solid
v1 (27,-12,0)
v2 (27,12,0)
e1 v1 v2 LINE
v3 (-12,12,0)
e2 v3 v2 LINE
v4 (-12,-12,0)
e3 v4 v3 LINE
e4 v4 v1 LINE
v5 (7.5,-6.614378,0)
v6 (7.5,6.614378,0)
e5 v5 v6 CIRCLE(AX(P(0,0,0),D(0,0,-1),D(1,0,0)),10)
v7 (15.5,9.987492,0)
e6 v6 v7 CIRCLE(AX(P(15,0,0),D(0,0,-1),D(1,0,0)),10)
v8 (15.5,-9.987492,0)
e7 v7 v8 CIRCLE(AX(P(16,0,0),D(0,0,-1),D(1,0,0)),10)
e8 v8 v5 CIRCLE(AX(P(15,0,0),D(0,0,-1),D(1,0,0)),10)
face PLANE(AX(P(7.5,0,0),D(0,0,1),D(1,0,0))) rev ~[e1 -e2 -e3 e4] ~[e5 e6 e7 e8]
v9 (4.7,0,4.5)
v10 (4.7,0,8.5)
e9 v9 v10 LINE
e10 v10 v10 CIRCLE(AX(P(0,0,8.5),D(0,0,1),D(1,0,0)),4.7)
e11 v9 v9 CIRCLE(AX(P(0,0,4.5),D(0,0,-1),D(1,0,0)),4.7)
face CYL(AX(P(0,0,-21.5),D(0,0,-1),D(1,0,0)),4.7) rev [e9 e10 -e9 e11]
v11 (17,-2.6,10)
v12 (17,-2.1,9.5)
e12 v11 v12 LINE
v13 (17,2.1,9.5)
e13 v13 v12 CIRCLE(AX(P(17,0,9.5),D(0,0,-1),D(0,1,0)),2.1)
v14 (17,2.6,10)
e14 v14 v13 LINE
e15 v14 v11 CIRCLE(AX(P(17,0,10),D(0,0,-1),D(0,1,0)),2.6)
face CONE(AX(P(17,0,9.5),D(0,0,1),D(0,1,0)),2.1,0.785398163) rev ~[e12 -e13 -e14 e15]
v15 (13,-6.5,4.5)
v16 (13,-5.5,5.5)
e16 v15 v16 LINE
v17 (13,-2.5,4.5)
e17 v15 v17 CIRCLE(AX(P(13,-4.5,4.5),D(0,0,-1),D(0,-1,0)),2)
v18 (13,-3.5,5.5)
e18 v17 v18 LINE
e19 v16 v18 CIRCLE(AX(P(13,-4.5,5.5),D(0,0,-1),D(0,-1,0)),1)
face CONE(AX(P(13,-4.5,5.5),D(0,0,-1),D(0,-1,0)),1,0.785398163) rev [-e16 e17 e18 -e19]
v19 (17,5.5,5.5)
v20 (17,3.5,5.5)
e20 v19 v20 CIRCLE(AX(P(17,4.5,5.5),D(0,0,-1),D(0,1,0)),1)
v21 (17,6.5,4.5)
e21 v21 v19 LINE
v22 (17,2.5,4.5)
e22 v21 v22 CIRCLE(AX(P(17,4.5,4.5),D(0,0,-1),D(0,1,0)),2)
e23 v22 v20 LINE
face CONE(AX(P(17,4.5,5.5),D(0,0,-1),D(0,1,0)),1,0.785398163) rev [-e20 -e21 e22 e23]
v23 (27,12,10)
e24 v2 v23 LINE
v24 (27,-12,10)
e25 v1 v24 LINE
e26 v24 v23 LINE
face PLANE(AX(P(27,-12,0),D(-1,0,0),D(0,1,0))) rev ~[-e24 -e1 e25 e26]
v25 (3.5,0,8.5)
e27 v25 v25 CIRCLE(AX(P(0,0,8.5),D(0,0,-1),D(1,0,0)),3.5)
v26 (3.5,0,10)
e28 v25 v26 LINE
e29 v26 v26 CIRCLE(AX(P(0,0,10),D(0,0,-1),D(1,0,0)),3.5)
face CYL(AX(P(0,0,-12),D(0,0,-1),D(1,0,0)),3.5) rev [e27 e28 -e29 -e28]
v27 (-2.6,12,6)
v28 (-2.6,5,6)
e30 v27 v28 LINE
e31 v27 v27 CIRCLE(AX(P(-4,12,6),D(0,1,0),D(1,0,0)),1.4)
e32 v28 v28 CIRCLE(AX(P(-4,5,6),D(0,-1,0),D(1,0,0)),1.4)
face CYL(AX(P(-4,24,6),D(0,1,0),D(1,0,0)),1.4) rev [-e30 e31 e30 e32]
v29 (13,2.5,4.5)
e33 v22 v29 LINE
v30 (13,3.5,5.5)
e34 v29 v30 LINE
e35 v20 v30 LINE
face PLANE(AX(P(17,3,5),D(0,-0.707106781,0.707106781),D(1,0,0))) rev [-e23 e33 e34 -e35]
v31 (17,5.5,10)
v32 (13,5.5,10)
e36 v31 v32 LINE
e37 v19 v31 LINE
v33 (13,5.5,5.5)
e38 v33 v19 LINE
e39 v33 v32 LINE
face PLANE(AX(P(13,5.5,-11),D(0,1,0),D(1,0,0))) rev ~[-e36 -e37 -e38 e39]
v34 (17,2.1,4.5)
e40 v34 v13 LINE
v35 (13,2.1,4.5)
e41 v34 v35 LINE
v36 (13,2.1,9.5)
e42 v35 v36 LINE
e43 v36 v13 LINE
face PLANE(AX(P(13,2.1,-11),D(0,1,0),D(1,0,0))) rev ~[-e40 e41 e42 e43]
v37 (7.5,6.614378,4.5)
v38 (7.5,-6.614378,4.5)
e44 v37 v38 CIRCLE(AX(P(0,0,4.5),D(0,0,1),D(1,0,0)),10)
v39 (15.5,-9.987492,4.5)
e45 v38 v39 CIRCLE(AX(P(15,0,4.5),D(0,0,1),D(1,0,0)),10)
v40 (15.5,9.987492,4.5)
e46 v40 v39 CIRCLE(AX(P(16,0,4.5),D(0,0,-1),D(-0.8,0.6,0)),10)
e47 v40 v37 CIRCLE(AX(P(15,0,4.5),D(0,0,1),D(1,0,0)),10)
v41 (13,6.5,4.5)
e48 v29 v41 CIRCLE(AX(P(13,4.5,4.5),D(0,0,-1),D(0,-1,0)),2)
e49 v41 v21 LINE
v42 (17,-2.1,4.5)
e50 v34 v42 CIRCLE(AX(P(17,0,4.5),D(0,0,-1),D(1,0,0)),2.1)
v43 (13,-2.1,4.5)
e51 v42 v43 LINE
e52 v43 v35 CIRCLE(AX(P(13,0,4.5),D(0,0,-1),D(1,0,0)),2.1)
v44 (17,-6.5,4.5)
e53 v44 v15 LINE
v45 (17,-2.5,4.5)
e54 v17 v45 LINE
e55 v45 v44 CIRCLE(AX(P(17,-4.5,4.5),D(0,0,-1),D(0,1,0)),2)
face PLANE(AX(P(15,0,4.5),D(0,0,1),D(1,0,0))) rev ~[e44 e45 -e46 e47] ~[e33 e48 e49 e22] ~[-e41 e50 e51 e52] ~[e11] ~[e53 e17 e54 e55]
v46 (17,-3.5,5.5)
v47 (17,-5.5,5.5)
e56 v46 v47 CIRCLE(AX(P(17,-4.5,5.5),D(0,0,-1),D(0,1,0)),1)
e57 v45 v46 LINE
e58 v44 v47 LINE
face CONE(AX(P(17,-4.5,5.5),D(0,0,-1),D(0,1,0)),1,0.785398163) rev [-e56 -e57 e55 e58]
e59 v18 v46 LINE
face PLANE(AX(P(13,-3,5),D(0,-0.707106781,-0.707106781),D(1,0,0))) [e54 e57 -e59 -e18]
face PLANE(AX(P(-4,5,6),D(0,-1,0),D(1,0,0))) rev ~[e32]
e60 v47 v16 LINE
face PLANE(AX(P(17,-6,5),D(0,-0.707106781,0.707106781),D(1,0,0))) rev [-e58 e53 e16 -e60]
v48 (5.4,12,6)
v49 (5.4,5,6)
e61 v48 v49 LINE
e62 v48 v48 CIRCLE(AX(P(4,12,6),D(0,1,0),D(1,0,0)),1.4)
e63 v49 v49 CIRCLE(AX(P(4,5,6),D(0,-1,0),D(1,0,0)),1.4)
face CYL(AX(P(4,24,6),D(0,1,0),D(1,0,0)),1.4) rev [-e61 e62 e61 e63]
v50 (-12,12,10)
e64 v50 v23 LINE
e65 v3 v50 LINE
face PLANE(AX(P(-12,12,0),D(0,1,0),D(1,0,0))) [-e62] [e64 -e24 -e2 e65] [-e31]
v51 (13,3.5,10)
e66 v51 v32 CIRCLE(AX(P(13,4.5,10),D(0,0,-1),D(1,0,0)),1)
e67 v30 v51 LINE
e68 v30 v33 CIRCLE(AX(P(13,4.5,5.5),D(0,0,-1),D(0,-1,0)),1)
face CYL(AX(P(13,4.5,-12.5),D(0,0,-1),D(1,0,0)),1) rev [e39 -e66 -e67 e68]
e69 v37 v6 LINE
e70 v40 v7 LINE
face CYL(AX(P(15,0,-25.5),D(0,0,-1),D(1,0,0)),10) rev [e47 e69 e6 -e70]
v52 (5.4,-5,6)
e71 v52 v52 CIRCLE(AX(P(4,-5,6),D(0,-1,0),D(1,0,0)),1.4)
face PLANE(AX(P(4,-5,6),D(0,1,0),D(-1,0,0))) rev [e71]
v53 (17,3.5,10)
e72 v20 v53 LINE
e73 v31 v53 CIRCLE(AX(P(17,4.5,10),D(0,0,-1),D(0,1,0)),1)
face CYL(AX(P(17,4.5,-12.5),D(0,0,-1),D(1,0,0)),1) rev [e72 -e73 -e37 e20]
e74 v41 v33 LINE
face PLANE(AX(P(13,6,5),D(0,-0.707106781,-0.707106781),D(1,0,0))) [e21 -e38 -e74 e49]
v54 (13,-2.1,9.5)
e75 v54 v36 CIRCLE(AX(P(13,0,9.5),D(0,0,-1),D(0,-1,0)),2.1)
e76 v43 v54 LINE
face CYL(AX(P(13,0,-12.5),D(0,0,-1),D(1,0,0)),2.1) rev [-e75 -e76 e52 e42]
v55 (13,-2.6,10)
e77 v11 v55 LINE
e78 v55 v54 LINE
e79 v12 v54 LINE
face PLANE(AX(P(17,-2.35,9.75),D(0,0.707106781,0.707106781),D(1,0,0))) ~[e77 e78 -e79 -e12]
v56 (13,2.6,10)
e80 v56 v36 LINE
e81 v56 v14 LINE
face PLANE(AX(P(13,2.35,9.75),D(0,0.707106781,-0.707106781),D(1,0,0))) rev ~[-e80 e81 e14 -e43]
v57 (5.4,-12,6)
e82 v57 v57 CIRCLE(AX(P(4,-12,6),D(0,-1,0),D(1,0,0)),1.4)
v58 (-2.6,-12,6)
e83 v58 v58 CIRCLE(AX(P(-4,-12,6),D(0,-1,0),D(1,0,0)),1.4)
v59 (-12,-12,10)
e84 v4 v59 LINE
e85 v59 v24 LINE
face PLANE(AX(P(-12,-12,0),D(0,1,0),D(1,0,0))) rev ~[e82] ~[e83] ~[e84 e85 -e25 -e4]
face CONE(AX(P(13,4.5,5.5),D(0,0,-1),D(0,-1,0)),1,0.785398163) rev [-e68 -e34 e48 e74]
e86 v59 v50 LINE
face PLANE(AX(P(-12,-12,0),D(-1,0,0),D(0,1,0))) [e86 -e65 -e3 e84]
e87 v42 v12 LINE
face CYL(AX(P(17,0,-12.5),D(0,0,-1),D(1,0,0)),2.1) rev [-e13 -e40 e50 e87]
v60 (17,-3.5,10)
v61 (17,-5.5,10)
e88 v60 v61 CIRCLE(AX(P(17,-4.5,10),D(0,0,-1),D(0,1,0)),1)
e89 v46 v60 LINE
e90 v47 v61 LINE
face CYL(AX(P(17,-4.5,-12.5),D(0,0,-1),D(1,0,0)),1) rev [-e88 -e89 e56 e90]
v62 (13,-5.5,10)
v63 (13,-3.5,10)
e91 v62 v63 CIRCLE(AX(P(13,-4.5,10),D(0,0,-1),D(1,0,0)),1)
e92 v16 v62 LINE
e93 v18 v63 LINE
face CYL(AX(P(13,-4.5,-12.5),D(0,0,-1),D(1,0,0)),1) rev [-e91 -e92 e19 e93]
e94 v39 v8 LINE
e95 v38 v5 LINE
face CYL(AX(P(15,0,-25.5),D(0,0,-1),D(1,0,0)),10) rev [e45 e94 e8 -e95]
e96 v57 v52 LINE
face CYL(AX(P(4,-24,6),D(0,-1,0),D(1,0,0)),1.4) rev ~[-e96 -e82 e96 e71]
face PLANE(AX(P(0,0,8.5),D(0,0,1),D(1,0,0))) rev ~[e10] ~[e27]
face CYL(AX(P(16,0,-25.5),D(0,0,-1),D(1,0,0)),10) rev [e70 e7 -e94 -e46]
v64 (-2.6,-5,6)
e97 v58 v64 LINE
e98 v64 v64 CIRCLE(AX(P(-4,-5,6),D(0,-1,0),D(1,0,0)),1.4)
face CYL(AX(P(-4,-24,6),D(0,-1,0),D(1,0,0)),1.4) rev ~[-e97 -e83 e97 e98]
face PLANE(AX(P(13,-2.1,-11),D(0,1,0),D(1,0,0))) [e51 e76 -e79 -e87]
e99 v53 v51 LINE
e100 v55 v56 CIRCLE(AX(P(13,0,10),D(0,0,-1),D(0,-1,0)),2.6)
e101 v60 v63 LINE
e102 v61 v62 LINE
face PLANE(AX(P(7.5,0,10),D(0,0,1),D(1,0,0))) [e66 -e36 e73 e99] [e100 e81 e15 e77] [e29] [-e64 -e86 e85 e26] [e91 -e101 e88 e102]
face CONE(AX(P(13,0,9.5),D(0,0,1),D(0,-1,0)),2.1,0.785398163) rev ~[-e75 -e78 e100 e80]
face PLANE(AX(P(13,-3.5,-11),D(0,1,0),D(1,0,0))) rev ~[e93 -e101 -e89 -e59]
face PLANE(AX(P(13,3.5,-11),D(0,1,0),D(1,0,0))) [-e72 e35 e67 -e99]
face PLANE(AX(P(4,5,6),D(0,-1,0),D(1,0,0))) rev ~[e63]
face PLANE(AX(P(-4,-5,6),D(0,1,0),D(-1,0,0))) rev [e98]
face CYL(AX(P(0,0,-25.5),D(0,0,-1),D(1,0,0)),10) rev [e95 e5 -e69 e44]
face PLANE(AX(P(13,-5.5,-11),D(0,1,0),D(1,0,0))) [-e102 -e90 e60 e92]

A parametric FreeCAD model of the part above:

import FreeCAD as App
import Part
import Sketcher

V = App.Vector


def edges_at(feature, points):
    """Names of the edges that pass closest to the given points."""
    edges = feature.Shape.Edges
    near = lambda p: min(range(len(edges)), key=lambda i: edges[i].distToShape(Part.Vertex(*p))[0])
    return sorted({f"Edge{near(p) + 1}" for p in points})

doc = App.newDocument("Part")
body = doc.addObject("PartDesign::Body", "Body")

# Sketch on XY plane
sketch1 = body.newObject("Sketcher::SketchObject", "Sketch")
sketch1.AttachmentSupport = (doc.getObject("XY_Plane"), [""])
sketch1.MapMode = "FlatFace"
sketch1.addGeometry(Part.Circle(V(0, 0, 0), V(0, 0, 1), 1.4), False)
sketch1.addConstraint(Sketcher.Constraint("Coincident", 0, 3, -1, 1))
sketch1.addConstraint(Sketcher.Constraint("Diameter", 0, 2.8))
pad1 = body.newObject("PartDesign::Pad", "Pad")
pad1.Profile = sketch1
pad1.Length = 19
body2 = doc.addObject("PartDesign::Body", "Body001")
doc.recompute()

body.Placement = App.Placement(V(0, 0, 0), App.Rotation(V(1, 0, 0), 90))
boolean = body2.newObject("PartDesign::Boolean", "Boolean")
boolean.Type = "Fuse"
boolean.addObjects([body])
body3 = doc.addObject("PartDesign::Body", "Body002")
doc.recompute()

body2.Placement = App.Placement(V(4, 24, 6), App.Rotation(V(0, 0, 1), 0))
boolean2 = body3.newObject("PartDesign::Boolean", "Boolean001")
boolean2.Type = "Fuse"
boolean2.addObjects([body2])
body4 = doc.addObject("PartDesign::Body", "Body003")

# Sketch on XY plane
sketch2 = body4.newObject("Sketcher::SketchObject", "Sketch001")
sketch2.AttachmentSupport = (doc.getObject("XY_Plane003"), [""])
sketch2.MapMode = "FlatFace"
sketch2.addGeometry(Part.Circle(V(0, 0, 0), V(0, 0, 1), 1.4), False)
sketch2.addConstraint(Sketcher.Constraint("Coincident", 0, 3, -1, 1))
sketch2.addConstraint(Sketcher.Constraint("Diameter", 0, 2.8))
pad2 = body4.newObject("PartDesign::Pad", "Pad001")
pad2.Profile = sketch2
pad2.Length = 19
body5 = doc.addObject("PartDesign::Body", "Body004")
doc.recompute()

body4.Placement = App.Placement(V(0, 0, 0), App.Rotation(V(1, 0, 0), 90))
boolean3 = body5.newObject("PartDesign::Boolean", "Boolean002")
boolean3.Type = "Fuse"
boolean3.addObjects([body4])
body6 = doc.addObject("PartDesign::Body", "Body005")
doc.recompute()

body5.Placement = App.Placement(V(-4, 24, 6), App.Rotation(V(0, 0, 1), 0))
boolean4 = body6.newObject("PartDesign::Boolean", "Boolean003")
boolean4.Type = "Fuse"
boolean4.addObjects([body5])
body7 = doc.addObject("PartDesign::Body", "Body006")
doc.recompute()

mirroring = doc.addObject("Part::Mirroring", "Mirroring")
mirroring.Source = body6
mirroring.Base = V(0, 0, 0)
mirroring.Normal = V(0, 1, 0)
body7.BaseFeature = mirroring
doc.recompute()
body8 = doc.addObject("PartDesign::Body", "Body007")

# Sketch on XY plane
sketch3 = body8.newObject("Sketcher::SketchObject", "Sketch002")
sketch3.AttachmentSupport = (doc.getObject("XY_Plane007"), [""])
sketch3.MapMode = "FlatFace"
sketch3.addGeometry(Part.Circle(V(0, 0, 0), V(0, 0, 1), 1.4), False)
sketch3.addConstraint(Sketcher.Constraint("Coincident", 0, 3, -1, 1))
sketch3.addConstraint(Sketcher.Constraint("Diameter", 0, 2.8))
pad3 = body8.newObject("PartDesign::Pad", "Pad002")
pad3.Profile = sketch3
pad3.Length = 19
body9 = doc.addObject("PartDesign::Body", "Body008")
doc.recompute()

body8.Placement = App.Placement(V(0, 0, 0), App.Rotation(V(1, 0, 0), 90))
boolean5 = body9.newObject("PartDesign::Boolean", "Boolean004")
boolean5.Type = "Fuse"
boolean5.addObjects([body8])
body10 = doc.addObject("PartDesign::Body", "Body009")
doc.recompute()

body9.Placement = App.Placement(V(4, 24, 6), App.Rotation(V(0, 0, 1), 0))
boolean6 = body10.newObject("PartDesign::Boolean", "Boolean005")
boolean6.Type = "Fuse"
boolean6.addObjects([body9])
body11 = doc.addObject("PartDesign::Body", "Body010")
doc.recompute()

mirroring2 = doc.addObject("Part::Mirroring", "Mirroring001")
mirroring2.Source = body10
mirroring2.Base = V(0, 0, 0)
mirroring2.Normal = V(0, 1, 0)
body11.BaseFeature = mirroring2
doc.recompute()
body12 = doc.addObject("PartDesign::Body", "Body011")

# Sketch on XY plane
sketch4 = body12.newObject("Sketcher::SketchObject", "Sketch003")
sketch4.AttachmentSupport = (doc.getObject("XY_Plane011"), [""])
sketch4.MapMode = "FlatFace"
sketch4.addGeometry(Part.Circle(V(0, 0, 0), V(0, 0, 1), 1.4), False)
sketch4.addConstraint(Sketcher.Constraint("Coincident", 0, 3, -1, 1))
sketch4.addConstraint(Sketcher.Constraint("Diameter", 0, 2.8))
pad4 = body12.newObject("PartDesign::Pad", "Pad003")
pad4.Profile = sketch4
pad4.Length = 19
body13 = doc.addObject("PartDesign::Body", "Body012")
doc.recompute()

body12.Placement = App.Placement(V(0, 0, 0), App.Rotation(V(1, 0, 0), 90))
boolean7 = body13.newObject("PartDesign::Boolean", "Boolean006")
boolean7.Type = "Fuse"
boolean7.addObjects([body12])
body14 = doc.addObject("PartDesign::Body", "Body013")
body14.AllowCompound = True
doc.recompute()

body13.Placement = App.Placement(V(-4, 24, 6), App.Rotation(V(0, 0, 1), 0))
boolean8 = body14.newObject("PartDesign::Boolean", "Boolean007")
boolean8.Type = "Fuse"
boolean8.addObjects([body13])
doc.recompute()

boolean9 = body14.newObject("PartDesign::Boolean", "Boolean008")
boolean9.Type = "Fuse"
boolean9.addObjects([body3])
doc.recompute()

boolean10 = body14.newObject("PartDesign::Boolean", "Boolean009")
boolean10.Type = "Fuse"
boolean10.addObjects([body7])
doc.recompute()

boolean11 = body14.newObject("PartDesign::Boolean", "Boolean010")
boolean11.Type = "Fuse"
boolean11.addObjects([body11])
body15 = doc.addObject("PartDesign::Body", "Body014")

# Sketch on XY plane
sketch5 = body15.newObject("Sketcher::SketchObject", "Sketch004")
sketch5.AttachmentSupport = (doc.getObject("XY_Plane014"), [""])
sketch5.MapMode = "FlatFace"
sketch5.AttachmentOffset = App.Placement(V(0, 0, -12.5), App.Rotation())
sketch5.addGeometry(Part.Circle(V(17, -4.5, 0), V(0, 0, 1), 1), False)
sketch5.addConstraint(Sketcher.Constraint("Diameter", 0, 2.0))
sketch5.addConstraint(Sketcher.Constraint("DistanceX", -1, 1, 0, 3, 17.0))
sketch5.addConstraint(Sketcher.Constraint("DistanceY", 0, 3, -1, 1, 4.5))
pad5 = body15.newObject("PartDesign::Pad", "Pad004")
pad5.Profile = sketch5
pad5.Length = 30
body16 = doc.addObject("PartDesign::Body", "Body015")

# Sketch on XY plane
sketch6 = body16.newObject("Sketcher::SketchObject", "Sketch005")
sketch6.AttachmentSupport = (doc.getObject("XY_Plane015"), [""])
sketch6.MapMode = "FlatFace"
sketch6.AttachmentOffset = App.Placement(V(0, 0, -12.5), App.Rotation())
sketch6.addGeometry(Part.Circle(V(17, 4.5, 0), V(0, 0, 1), 1), False)
sketch6.addConstraint(Sketcher.Constraint("Diameter", 0, 2.0))
sketch6.addConstraint(Sketcher.Constraint("DistanceX", -1, 1, 0, 3, 17.0))
sketch6.addConstraint(Sketcher.Constraint("DistanceY", -1, 1, 0, 3, 4.5))
pad6 = body16.newObject("PartDesign::Pad", "Pad005")
pad6.Profile = sketch6
pad6.Length = 30
body17 = doc.addObject("PartDesign::Body", "Body016")

# Sketch on XY plane
sketch7 = body17.newObject("Sketcher::SketchObject", "Sketch006")
sketch7.AttachmentSupport = (doc.getObject("XY_Plane016"), [""])
sketch7.MapMode = "FlatFace"
sketch7.AttachmentOffset = App.Placement(V(0, 0, -11), App.Rotation())
sketch7.addGeometry(Part.LineSegment(V(13, 2.1, 0), V(13, -2.1, 0)), False)
sketch7.addGeometry(Part.LineSegment(V(13, -2.1, 0), V(17, -2.1, 0)), False)
sketch7.addGeometry(Part.LineSegment(V(17, -2.1, 0), V(17, 2.1, 0)), False)
sketch7.addGeometry(Part.LineSegment(V(17, 2.1, 0), V(13, 2.1, 0)), False)
sketch7.addConstraint(Sketcher.Constraint("Coincident", 0, 2, 1, 1))
sketch7.addConstraint(Sketcher.Constraint("Coincident", 1, 2, 2, 1))
sketch7.addConstraint(Sketcher.Constraint("Coincident", 2, 2, 3, 1))
sketch7.addConstraint(Sketcher.Constraint("Coincident", 3, 2, 0, 1))
sketch7.addConstraint(Sketcher.Constraint("Vertical", 0))
sketch7.addConstraint(Sketcher.Constraint("Horizontal", 1))
sketch7.addConstraint(Sketcher.Constraint("Vertical", 2))
sketch7.addConstraint(Sketcher.Constraint("Horizontal", 3))
sketch7.addConstraint(Sketcher.Constraint("DistanceX", 1, 1, 1, 2, 4.0))
sketch7.addConstraint(Sketcher.Constraint("DistanceY", 0, 2, 0, 1, 4.2))
sketch7.addConstraint(Sketcher.Constraint("DistanceX", -1, 1, 0, 2, 13.0))
sketch7.addConstraint(Sketcher.Constraint("DistanceY", 0, 2, -1, 1, 2.1))
pad7 = body17.newObject("PartDesign::Pad", "Pad006")
pad7.Profile = sketch7
pad7.Length = 27
body18 = doc.addObject("PartDesign::Body", "Body017")

# Sketch on XY plane
sketch8 = body18.newObject("Sketcher::SketchObject", "Sketch007")
sketch8.AttachmentSupport = (doc.getObject("XY_Plane017"), [""])
sketch8.MapMode = "FlatFace"
sketch8.AttachmentOffset = App.Placement(V(0, 0, -12.5), App.Rotation())
sketch8.addGeometry(Part.Circle(V(17, 0, 0), V(0, 0, 1), 2.1), False)
sketch8.addConstraint(Sketcher.Constraint("PointOnObject", 0, 3, -1))
sketch8.addConstraint(Sketcher.Constraint("Diameter", 0, 4.2))
sketch8.addConstraint(Sketcher.Constraint("DistanceX", -1, 1, 0, 3, 17.0))
pad8 = body18.newObject("PartDesign::Pad", "Pad007")
pad8.Profile = sketch8
pad8.Length = 30
body19 = doc.addObject("PartDesign::Body", "Body018")

# Sketch on XY plane
sketch9 = body19.newObject("Sketcher::SketchObject", "Sketch008")
sketch9.AttachmentSupport = (doc.getObject("XY_Plane018"), [""])
sketch9.MapMode = "FlatFace"
sketch9.AttachmentOffset = App.Placement(V(0, 0, -12.5), App.Rotation())
sketch9.addGeometry(Part.Circle(V(13, 0, 0), V(0, 0, 1), 2.1), False)
sketch9.addConstraint(Sketcher.Constraint("PointOnObject", 0, 3, -1))
sketch9.addConstraint(Sketcher.Constraint("Diameter", 0, 4.2))
sketch9.addConstraint(Sketcher.Constraint("DistanceX", -1, 1, 0, 3, 13.0))
pad9 = body19.newObject("PartDesign::Pad", "Pad008")
pad9.Profile = sketch9
pad9.Length = 30
body20 = doc.addObject("PartDesign::Body", "Body019")

# Sketch on XY plane
sketch10 = body20.newObject("Sketcher::SketchObject", "Sketch009")
sketch10.AttachmentSupport = (doc.getObject("XY_Plane019"), [""])
sketch10.MapMode = "FlatFace"
sketch10.AttachmentOffset = App.Placement(V(0, 0, -12.5), App.Rotation())
sketch10.addGeometry(Part.Circle(V(13, -4.5, 0), V(0, 0, 1), 1), False)
sketch10.addConstraint(Sketcher.Constraint("Diameter", 0, 2.0))
sketch10.addConstraint(Sketcher.Constraint("DistanceX", -1, 1, 0, 3, 13.0))
sketch10.addConstraint(Sketcher.Constraint("DistanceY", 0, 3, -1, 1, 4.5))
pad10 = body20.newObject("PartDesign::Pad", "Pad009")
pad10.Profile = sketch10
pad10.Length = 30
body21 = doc.addObject("PartDesign::Body", "Body020")

# Sketch on XY plane
sketch11 = body21.newObject("Sketcher::SketchObject", "Sketch010")
sketch11.AttachmentSupport = (doc.getObject("XY_Plane020"), [""])
sketch11.MapMode = "FlatFace"
sketch11.AttachmentOffset = App.Placement(V(0, 0, -11), App.Rotation())
sketch11.addGeometry(Part.LineSegment(V(13, -3.5, 0), V(13, -5.5, 0)), False)
sketch11.addGeometry(Part.LineSegment(V(13, -5.5, 0), V(17, -5.5, 0)), False)
sketch11.addGeometry(Part.LineSegment(V(17, -5.5, 0), V(17, -3.5, 0)), False)
sketch11.addGeometry(Part.LineSegment(V(17, -3.5, 0), V(13, -3.5, 0)), False)
sketch11.addConstraint(Sketcher.Constraint("Coincident", 0, 2, 1, 1))
sketch11.addConstraint(Sketcher.Constraint("Coincident", 1, 2, 2, 1))
sketch11.addConstraint(Sketcher.Constraint("Coincident", 2, 2, 3, 1))
sketch11.addConstraint(Sketcher.Constraint("Coincident", 3, 2, 0, 1))
sketch11.addConstraint(Sketcher.Constraint("Vertical", 0))
sketch11.addConstraint(Sketcher.Constraint("Horizontal", 1))
sketch11.addConstraint(Sketcher.Constraint("Vertical", 2))
sketch11.addConstraint(Sketcher.Constraint("Horizontal", 3))
sketch11.addConstraint(Sketcher.Constraint("DistanceX", 1, 1, 1, 2, 4.0))
sketch11.addConstraint(Sketcher.Constraint("DistanceY", 0, 2, 0, 1, 2.0))
sketch11.addConstraint(Sketcher.Constraint("DistanceX", -1, 1, 0, 2, 13.0))
sketch11.addConstraint(Sketcher.Constraint("DistanceY", 0, 2, -1, 1, 5.5))
pad11 = body21.newObject("PartDesign::Pad", "Pad010")
pad11.Profile = sketch11
pad11.Length = 27
body22 = doc.addObject("PartDesign::Body", "Body021")

# Sketch on XY plane
sketch12 = body22.newObject("Sketcher::SketchObject", "Sketch011")
sketch12.AttachmentSupport = (doc.getObject("XY_Plane021"), [""])
sketch12.MapMode = "FlatFace"
sketch12.AttachmentOffset = App.Placement(V(0, 0, -12.5), App.Rotation())
sketch12.addGeometry(Part.Circle(V(13, 4.5, 0), V(0, 0, 1), 1), False)
sketch12.addConstraint(Sketcher.Constraint("Diameter", 0, 2.0))
sketch12.addConstraint(Sketcher.Constraint("DistanceX", -1, 1, 0, 3, 13.0))
sketch12.addConstraint(Sketcher.Constraint("DistanceY", -1, 1, 0, 3, 4.5))
pad12 = body22.newObject("PartDesign::Pad", "Pad011")
pad12.Profile = sketch12
pad12.Length = 30
body23 = doc.addObject("PartDesign::Body", "Body022")
body23.AllowCompound = True

# Sketch on XY plane
sketch13 = body23.newObject("Sketcher::SketchObject", "Sketch012")
sketch13.AttachmentSupport = (doc.getObject("XY_Plane022"), [""])
sketch13.MapMode = "FlatFace"
sketch13.AttachmentOffset = App.Placement(V(0, 0, -11), App.Rotation())
sketch13.addGeometry(Part.LineSegment(V(13, 5.5, 0), V(13, 3.5, 0)), False)
sketch13.addGeometry(Part.LineSegment(V(13, 3.5, 0), V(17, 3.5, 0)), False)
sketch13.addGeometry(Part.LineSegment(V(17, 3.5, 0), V(17, 5.5, 0)), False)
sketch13.addGeometry(Part.LineSegment(V(17, 5.5, 0), V(13, 5.5, 0)), False)
sketch13.addConstraint(Sketcher.Constraint("Coincident", 0, 2, 1, 1))
sketch13.addConstraint(Sketcher.Constraint("Coincident", 1, 2, 2, 1))
sketch13.addConstraint(Sketcher.Constraint("Coincident", 2, 2, 3, 1))
sketch13.addConstraint(Sketcher.Constraint("Coincident", 3, 2, 0, 1))
sketch13.addConstraint(Sketcher.Constraint("Vertical", 0))
sketch13.addConstraint(Sketcher.Constraint("Horizontal", 1))
sketch13.addConstraint(Sketcher.Constraint("Vertical", 2))
sketch13.addConstraint(Sketcher.Constraint("Horizontal", 3))
sketch13.addConstraint(Sketcher.Constraint("DistanceX", 1, 1, 1, 2, 4.0))
sketch13.addConstraint(Sketcher.Constraint("DistanceY", 0, 2, 0, 1, 2.0))
sketch13.addConstraint(Sketcher.Constraint("DistanceX", -1, 1, 0, 2, 13.0))
sketch13.addConstraint(Sketcher.Constraint("DistanceY", -1, 1, 0, 2, 3.5))
pad13 = body23.newObject("PartDesign::Pad", "Pad012")
pad13.Profile = sketch13
pad13.Length = 27
doc.recompute()

boolean12 = body23.newObject("PartDesign::Boolean", "Boolean011")
boolean12.Type = "Fuse"
boolean12.addObjects([body15])
doc.recompute()

boolean13 = body23.newObject("PartDesign::Boolean", "Boolean012")
boolean13.Type = "Fuse"
boolean13.addObjects([body16])
doc.recompute()

boolean14 = body23.newObject("PartDesign::Boolean", "Boolean013")
boolean14.Type = "Fuse"
boolean14.addObjects([body17])
doc.recompute()

boolean15 = body23.newObject("PartDesign::Boolean", "Boolean014")
boolean15.Type = "Fuse"
boolean15.addObjects([body18])
doc.recompute()

boolean16 = body23.newObject("PartDesign::Boolean", "Boolean015")
boolean16.Type = "Fuse"
boolean16.addObjects([body19])
doc.recompute()

boolean17 = body23.newObject("PartDesign::Boolean", "Boolean016")
boolean17.Type = "Fuse"
boolean17.addObjects([body20])
doc.recompute()

boolean18 = body23.newObject("PartDesign::Boolean", "Boolean017")
boolean18.Type = "Fuse"
boolean18.addObjects([body21])
doc.recompute()

boolean19 = body23.newObject("PartDesign::Boolean", "Boolean018")
boolean19.Type = "Fuse"
boolean19.addObjects([body22])
body24 = doc.addObject("PartDesign::Body", "Body023")

# Sketch on XY plane
sketch14 = body24.newObject("Sketcher::SketchObject", "Sketch013")
sketch14.AttachmentSupport = (doc.getObject("XY_Plane023"), [""])
sketch14.MapMode = "FlatFace"
sketch14.AttachmentOffset = App.Placement(V(0, 0, -12), App.Rotation())
sketch14.addGeometry(Part.Circle(V(0, 0, 0), V(0, 0, 1), 3.5), False)
sketch14.addConstraint(Sketcher.Constraint("Coincident", 0, 3, -1, 1))
sketch14.addConstraint(Sketcher.Constraint("Diameter", 0, 7.0))
pad14 = body24.newObject("PartDesign::Pad", "Pad013")
pad14.Profile = sketch14
pad14.Length = 30
body25 = doc.addObject("PartDesign::Body", "Body024")

# Sketch on XY plane
sketch15 = body25.newObject("Sketcher::SketchObject", "Sketch014")
sketch15.AttachmentSupport = (doc.getObject("XY_Plane024"), [""])
sketch15.MapMode = "FlatFace"
sketch15.AttachmentOffset = App.Placement(V(0, 0, -21.5), App.Rotation())
sketch15.addGeometry(Part.Circle(V(0, 0, 0), V(0, 0, 1), 4.7), False)
sketch15.addConstraint(Sketcher.Constraint("Coincident", 0, 3, -1, 1))
sketch15.addConstraint(Sketcher.Constraint("Diameter", 0, 9.4))
pad15 = body25.newObject("PartDesign::Pad", "Pad014")
pad15.Profile = sketch15
pad15.Length = 30
body26 = doc.addObject("PartDesign::Body", "Body025")

# Sketch on XY plane
sketch16 = body26.newObject("Sketcher::SketchObject", "Sketch015")
sketch16.AttachmentSupport = (doc.getObject("XY_Plane025"), [""])
sketch16.MapMode = "FlatFace"
sketch16.AttachmentOffset = App.Placement(V(0, 0, -25.5), App.Rotation())
sketch16.addGeometry(Part.Circle(V(0, 0, 0), V(0, 0, 1), 10), False)
sketch16.addConstraint(Sketcher.Constraint("Coincident", 0, 3, -1, 1))
sketch16.addConstraint(Sketcher.Constraint("Diameter", 0, 20.0))
pad16 = body26.newObject("PartDesign::Pad", "Pad015")
pad16.Profile = sketch16
pad16.Length = 30
body27 = doc.addObject("PartDesign::Body", "Body026")

# Sketch on XY plane
sketch17 = body27.newObject("Sketcher::SketchObject", "Sketch016")
sketch17.AttachmentSupport = (doc.getObject("XY_Plane026"), [""])
sketch17.MapMode = "FlatFace"
sketch17.AttachmentOffset = App.Placement(V(0, 0, -25.5), App.Rotation())
sketch17.addGeometry(Part.Circle(V(15, 0, 0), V(0, 0, 1), 10), False)
sketch17.addConstraint(Sketcher.Constraint("PointOnObject", 0, 3, -1))
sketch17.addConstraint(Sketcher.Constraint("Diameter", 0, 20.0))
sketch17.addConstraint(Sketcher.Constraint("DistanceX", -1, 1, 0, 3, 15.0))
pad17 = body27.newObject("PartDesign::Pad", "Pad016")
pad17.Profile = sketch17
pad17.Length = 30
body28 = doc.addObject("PartDesign::Body", "Body027")
body28.AllowCompound = True

# Sketch on XY plane
sketch18 = body28.newObject("Sketcher::SketchObject", "Sketch017")
sketch18.AttachmentSupport = (doc.getObject("XY_Plane027"), [""])
sketch18.MapMode = "FlatFace"
sketch18.AttachmentOffset = App.Placement(V(0, 0, -25.5), App.Rotation())
sketch18.addGeometry(Part.Circle(V(16, 0, 0), V(0, 0, 1), 10), False)
sketch18.addConstraint(Sketcher.Constraint("PointOnObject", 0, 3, -1))
sketch18.addConstraint(Sketcher.Constraint("Diameter", 0, 20.0))
sketch18.addConstraint(Sketcher.Constraint("DistanceX", -1, 1, 0, 3, 16.0))
pad18 = body28.newObject("PartDesign::Pad", "Pad017")
pad18.Profile = sketch18
pad18.Length = 30
doc.recompute()

boolean20 = body28.newObject("PartDesign::Boolean", "Boolean019")
boolean20.Type = "Fuse"
boolean20.addObjects([body24])
doc.recompute()

boolean21 = body28.newObject("PartDesign::Boolean", "Boolean020")
boolean21.Type = "Fuse"
boolean21.addObjects([body25])
doc.recompute()

boolean22 = body28.newObject("PartDesign::Boolean", "Boolean021")
boolean22.Type = "Fuse"
boolean22.addObjects([body26])
doc.recompute()

boolean23 = body28.newObject("PartDesign::Boolean", "Boolean022")
boolean23.Type = "Fuse"
boolean23.addObjects([body27])
doc.recompute()

boolean24 = body28.newObject("PartDesign::Boolean", "Boolean023")
boolean24.Type = "Fuse"
boolean24.addObjects([body23])
body29 = doc.addObject("PartDesign::Body", "Body028")

# Sketch on XY plane
sketch19 = body29.newObject("Sketcher::SketchObject", "Sketch018")
sketch19.AttachmentSupport = (doc.getObject("XY_Plane028"), [""])
sketch19.MapMode = "FlatFace"
sketch19.addGeometry(Part.LineSegment(V(-12, 12, 0), V(-12, -12, 0)), False)
sketch19.addGeometry(Part.LineSegment(V(-12, -12, 0), V(27, -12, 0)), False)
sketch19.addGeometry(Part.LineSegment(V(27, -12, 0), V(27, 12, 0)), False)
sketch19.addGeometry(Part.LineSegment(V(27, 12, 0), V(-12, 12, 0)), False)
sketch19.addConstraint(Sketcher.Constraint("Coincident", 0, 2, 1, 1))
sketch19.addConstraint(Sketcher.Constraint("Coincident", 1, 2, 2, 1))
sketch19.addConstraint(Sketcher.Constraint("Coincident", 2, 2, 3, 1))
sketch19.addConstraint(Sketcher.Constraint("Coincident", 3, 2, 0, 1))
sketch19.addConstraint(Sketcher.Constraint("Vertical", 0))
sketch19.addConstraint(Sketcher.Constraint("Horizontal", 1))
sketch19.addConstraint(Sketcher.Constraint("Vertical", 2))
sketch19.addConstraint(Sketcher.Constraint("Horizontal", 3))
sketch19.addConstraint(Sketcher.Constraint("DistanceX", 1, 1, 1, 2, 39.0))
sketch19.addConstraint(Sketcher.Constraint("DistanceY", 0, 2, 0, 1, 24.0))
sketch19.addConstraint(Sketcher.Constraint("DistanceX", 0, 2, -1, 1, 12.0))
sketch19.addConstraint(Sketcher.Constraint("DistanceY", 0, 2, -1, 1, 12.0))
pad19 = body29.newObject("PartDesign::Pad", "Pad018")
pad19.Profile = sketch19
pad19.Length = 10
doc.recompute()

boolean25 = body29.newObject("PartDesign::Boolean", "Boolean024")
boolean25.Type = "Cut"
boolean25.addObjects([body28])
doc.recompute()

chamfer = body29.newObject("PartDesign::Chamfer", "Chamfer")
chamfer.Base = (boolean25, edges_at(boolean25, [
    (12, 4.5, 4.5),
    (15, 3.5, 4.5),
    (18, 4.5, 4.5),
    (18, 4.5, 4.5),
    (15, 5.5, 4.5),
    (18, -4.5, 4.5),
    (18, -4.5, 4.5),
    (15, -3.5, 4.5),
    (12, -4.5, 4.5),
    (15, -5.5, 4.5),
]))
chamfer.Size = 1
doc.recompute()

boolean26 = body29.newObject("PartDesign::Boolean", "Boolean025")
boolean26.Type = "Cut"
boolean26.addObjects([body14])
doc.recompute()

chamfer2 = body29.newObject("PartDesign::Chamfer", "Chamfer001")
chamfer2.Base = (boolean26, edges_at(boolean26, [
    (19.1, 0, 10),
    (15, 2.1, 10),
    (10.9, 0, 10),
    (15, -2.1, 10),
    (19.1, 0, 10),
]))
chamfer2.Size = 0.5
mirroring.Visibility = False
mirroring2.Visibility = False

doc.recompute()
